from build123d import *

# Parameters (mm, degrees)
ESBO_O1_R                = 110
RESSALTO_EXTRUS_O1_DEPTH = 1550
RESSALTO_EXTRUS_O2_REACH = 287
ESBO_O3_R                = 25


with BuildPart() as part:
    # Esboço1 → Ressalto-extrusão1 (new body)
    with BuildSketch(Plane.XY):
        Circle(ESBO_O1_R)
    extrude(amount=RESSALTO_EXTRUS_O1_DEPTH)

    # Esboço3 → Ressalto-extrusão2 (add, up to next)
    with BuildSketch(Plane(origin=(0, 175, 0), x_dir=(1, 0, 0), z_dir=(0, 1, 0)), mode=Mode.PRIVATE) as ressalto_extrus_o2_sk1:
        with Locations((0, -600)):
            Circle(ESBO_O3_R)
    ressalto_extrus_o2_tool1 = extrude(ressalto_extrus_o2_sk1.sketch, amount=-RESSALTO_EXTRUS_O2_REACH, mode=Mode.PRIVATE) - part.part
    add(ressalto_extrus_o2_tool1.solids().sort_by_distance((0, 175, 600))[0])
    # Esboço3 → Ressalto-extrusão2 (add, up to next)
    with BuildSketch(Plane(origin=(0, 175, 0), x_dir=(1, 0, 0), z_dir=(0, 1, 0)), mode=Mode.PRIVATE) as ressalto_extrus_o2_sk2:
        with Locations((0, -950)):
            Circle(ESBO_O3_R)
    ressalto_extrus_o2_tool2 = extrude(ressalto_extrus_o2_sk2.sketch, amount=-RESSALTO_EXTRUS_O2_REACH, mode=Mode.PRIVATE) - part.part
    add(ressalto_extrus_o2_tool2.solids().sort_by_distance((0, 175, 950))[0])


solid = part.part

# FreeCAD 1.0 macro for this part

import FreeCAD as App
import Part
import Sketcher

doc = App.newDocument("Part")
body = doc.addObject("PartDesign::Body", "Body")

sketch1 = doc.addObject("Sketcher::SketchObject", "Sketch")
body.addObject(sketch1)
sketch1.AttachmentSupport = (doc.XY_Plane, [""])
sketch1.MapMode = "FlatFace"
sketch1.addGeometry(Part.Circle(App.Vector(0, 0, 0), App.Vector(0, 0, 1), 110), False)
sketch1.addConstraint([
    Sketcher.Constraint("Coincident", 0, 3, -1, 1),
    Sketcher.Constraint("Diameter", 0, 220.0),
])
pad1 = doc.addObject("PartDesign::Pad", "Pad")
body.addObject(pad1)
pad1.Profile = sketch1
pad1.Length = 1550

sketch2 = doc.addObject("Sketcher::SketchObject", "Sketch001")
body.addObject(sketch2)
sketch2.AttachmentSupport = (doc.XZ_Plane, [""])
sketch2.MapMode = "FlatFace"
sketch2.AttachmentOffset = App.Placement(App.Vector(0, 0, -175), App.Rotation())
sketch2.addGeometry(Part.Circle(App.Vector(0, 600, 0), App.Vector(0, 0, 1), 25), False)
sketch2.addConstraint([
    Sketcher.Constraint("PointOnObject", 0, 3, -2),
    Sketcher.Constraint("Diameter", 0, 50.0),
    Sketcher.Constraint("DistanceY", -1, 1, 0, 3, 600.0),
])
pad2 = doc.addObject("PartDesign::Pad", "Pad001")
body.addObject(pad2)
pad2.Profile = sketch2
pad2.Type = "UpToFirst"

sketch3 = doc.addObject("Sketcher::SketchObject", "Sketch002")
body.addObject(sketch3)
sketch3.AttachmentSupport = (doc.XZ_Plane, [""])
sketch3.MapMode = "FlatFace"
sketch3.AttachmentOffset = App.Placement(App.Vector(0, 0, -175), App.Rotation())
sketch3.addGeometry(Part.Circle(App.Vector(0, 950, 0), App.Vector(0, 0, 1), 25), False)
sketch3.addConstraint([
    Sketcher.Constraint("PointOnObject", 0, 3, -2),
    Sketcher.Constraint("Diameter", 0, 50.0),
    Sketcher.Constraint("DistanceY", -1, 1, 0, 3, 950.0),
])
pad3 = doc.addObject("PartDesign::Pad", "Pad002")
body.addObject(pad3)
pad3.Profile = sketch3
pad3.Type = "UpToFirst"

doc.recompute()
